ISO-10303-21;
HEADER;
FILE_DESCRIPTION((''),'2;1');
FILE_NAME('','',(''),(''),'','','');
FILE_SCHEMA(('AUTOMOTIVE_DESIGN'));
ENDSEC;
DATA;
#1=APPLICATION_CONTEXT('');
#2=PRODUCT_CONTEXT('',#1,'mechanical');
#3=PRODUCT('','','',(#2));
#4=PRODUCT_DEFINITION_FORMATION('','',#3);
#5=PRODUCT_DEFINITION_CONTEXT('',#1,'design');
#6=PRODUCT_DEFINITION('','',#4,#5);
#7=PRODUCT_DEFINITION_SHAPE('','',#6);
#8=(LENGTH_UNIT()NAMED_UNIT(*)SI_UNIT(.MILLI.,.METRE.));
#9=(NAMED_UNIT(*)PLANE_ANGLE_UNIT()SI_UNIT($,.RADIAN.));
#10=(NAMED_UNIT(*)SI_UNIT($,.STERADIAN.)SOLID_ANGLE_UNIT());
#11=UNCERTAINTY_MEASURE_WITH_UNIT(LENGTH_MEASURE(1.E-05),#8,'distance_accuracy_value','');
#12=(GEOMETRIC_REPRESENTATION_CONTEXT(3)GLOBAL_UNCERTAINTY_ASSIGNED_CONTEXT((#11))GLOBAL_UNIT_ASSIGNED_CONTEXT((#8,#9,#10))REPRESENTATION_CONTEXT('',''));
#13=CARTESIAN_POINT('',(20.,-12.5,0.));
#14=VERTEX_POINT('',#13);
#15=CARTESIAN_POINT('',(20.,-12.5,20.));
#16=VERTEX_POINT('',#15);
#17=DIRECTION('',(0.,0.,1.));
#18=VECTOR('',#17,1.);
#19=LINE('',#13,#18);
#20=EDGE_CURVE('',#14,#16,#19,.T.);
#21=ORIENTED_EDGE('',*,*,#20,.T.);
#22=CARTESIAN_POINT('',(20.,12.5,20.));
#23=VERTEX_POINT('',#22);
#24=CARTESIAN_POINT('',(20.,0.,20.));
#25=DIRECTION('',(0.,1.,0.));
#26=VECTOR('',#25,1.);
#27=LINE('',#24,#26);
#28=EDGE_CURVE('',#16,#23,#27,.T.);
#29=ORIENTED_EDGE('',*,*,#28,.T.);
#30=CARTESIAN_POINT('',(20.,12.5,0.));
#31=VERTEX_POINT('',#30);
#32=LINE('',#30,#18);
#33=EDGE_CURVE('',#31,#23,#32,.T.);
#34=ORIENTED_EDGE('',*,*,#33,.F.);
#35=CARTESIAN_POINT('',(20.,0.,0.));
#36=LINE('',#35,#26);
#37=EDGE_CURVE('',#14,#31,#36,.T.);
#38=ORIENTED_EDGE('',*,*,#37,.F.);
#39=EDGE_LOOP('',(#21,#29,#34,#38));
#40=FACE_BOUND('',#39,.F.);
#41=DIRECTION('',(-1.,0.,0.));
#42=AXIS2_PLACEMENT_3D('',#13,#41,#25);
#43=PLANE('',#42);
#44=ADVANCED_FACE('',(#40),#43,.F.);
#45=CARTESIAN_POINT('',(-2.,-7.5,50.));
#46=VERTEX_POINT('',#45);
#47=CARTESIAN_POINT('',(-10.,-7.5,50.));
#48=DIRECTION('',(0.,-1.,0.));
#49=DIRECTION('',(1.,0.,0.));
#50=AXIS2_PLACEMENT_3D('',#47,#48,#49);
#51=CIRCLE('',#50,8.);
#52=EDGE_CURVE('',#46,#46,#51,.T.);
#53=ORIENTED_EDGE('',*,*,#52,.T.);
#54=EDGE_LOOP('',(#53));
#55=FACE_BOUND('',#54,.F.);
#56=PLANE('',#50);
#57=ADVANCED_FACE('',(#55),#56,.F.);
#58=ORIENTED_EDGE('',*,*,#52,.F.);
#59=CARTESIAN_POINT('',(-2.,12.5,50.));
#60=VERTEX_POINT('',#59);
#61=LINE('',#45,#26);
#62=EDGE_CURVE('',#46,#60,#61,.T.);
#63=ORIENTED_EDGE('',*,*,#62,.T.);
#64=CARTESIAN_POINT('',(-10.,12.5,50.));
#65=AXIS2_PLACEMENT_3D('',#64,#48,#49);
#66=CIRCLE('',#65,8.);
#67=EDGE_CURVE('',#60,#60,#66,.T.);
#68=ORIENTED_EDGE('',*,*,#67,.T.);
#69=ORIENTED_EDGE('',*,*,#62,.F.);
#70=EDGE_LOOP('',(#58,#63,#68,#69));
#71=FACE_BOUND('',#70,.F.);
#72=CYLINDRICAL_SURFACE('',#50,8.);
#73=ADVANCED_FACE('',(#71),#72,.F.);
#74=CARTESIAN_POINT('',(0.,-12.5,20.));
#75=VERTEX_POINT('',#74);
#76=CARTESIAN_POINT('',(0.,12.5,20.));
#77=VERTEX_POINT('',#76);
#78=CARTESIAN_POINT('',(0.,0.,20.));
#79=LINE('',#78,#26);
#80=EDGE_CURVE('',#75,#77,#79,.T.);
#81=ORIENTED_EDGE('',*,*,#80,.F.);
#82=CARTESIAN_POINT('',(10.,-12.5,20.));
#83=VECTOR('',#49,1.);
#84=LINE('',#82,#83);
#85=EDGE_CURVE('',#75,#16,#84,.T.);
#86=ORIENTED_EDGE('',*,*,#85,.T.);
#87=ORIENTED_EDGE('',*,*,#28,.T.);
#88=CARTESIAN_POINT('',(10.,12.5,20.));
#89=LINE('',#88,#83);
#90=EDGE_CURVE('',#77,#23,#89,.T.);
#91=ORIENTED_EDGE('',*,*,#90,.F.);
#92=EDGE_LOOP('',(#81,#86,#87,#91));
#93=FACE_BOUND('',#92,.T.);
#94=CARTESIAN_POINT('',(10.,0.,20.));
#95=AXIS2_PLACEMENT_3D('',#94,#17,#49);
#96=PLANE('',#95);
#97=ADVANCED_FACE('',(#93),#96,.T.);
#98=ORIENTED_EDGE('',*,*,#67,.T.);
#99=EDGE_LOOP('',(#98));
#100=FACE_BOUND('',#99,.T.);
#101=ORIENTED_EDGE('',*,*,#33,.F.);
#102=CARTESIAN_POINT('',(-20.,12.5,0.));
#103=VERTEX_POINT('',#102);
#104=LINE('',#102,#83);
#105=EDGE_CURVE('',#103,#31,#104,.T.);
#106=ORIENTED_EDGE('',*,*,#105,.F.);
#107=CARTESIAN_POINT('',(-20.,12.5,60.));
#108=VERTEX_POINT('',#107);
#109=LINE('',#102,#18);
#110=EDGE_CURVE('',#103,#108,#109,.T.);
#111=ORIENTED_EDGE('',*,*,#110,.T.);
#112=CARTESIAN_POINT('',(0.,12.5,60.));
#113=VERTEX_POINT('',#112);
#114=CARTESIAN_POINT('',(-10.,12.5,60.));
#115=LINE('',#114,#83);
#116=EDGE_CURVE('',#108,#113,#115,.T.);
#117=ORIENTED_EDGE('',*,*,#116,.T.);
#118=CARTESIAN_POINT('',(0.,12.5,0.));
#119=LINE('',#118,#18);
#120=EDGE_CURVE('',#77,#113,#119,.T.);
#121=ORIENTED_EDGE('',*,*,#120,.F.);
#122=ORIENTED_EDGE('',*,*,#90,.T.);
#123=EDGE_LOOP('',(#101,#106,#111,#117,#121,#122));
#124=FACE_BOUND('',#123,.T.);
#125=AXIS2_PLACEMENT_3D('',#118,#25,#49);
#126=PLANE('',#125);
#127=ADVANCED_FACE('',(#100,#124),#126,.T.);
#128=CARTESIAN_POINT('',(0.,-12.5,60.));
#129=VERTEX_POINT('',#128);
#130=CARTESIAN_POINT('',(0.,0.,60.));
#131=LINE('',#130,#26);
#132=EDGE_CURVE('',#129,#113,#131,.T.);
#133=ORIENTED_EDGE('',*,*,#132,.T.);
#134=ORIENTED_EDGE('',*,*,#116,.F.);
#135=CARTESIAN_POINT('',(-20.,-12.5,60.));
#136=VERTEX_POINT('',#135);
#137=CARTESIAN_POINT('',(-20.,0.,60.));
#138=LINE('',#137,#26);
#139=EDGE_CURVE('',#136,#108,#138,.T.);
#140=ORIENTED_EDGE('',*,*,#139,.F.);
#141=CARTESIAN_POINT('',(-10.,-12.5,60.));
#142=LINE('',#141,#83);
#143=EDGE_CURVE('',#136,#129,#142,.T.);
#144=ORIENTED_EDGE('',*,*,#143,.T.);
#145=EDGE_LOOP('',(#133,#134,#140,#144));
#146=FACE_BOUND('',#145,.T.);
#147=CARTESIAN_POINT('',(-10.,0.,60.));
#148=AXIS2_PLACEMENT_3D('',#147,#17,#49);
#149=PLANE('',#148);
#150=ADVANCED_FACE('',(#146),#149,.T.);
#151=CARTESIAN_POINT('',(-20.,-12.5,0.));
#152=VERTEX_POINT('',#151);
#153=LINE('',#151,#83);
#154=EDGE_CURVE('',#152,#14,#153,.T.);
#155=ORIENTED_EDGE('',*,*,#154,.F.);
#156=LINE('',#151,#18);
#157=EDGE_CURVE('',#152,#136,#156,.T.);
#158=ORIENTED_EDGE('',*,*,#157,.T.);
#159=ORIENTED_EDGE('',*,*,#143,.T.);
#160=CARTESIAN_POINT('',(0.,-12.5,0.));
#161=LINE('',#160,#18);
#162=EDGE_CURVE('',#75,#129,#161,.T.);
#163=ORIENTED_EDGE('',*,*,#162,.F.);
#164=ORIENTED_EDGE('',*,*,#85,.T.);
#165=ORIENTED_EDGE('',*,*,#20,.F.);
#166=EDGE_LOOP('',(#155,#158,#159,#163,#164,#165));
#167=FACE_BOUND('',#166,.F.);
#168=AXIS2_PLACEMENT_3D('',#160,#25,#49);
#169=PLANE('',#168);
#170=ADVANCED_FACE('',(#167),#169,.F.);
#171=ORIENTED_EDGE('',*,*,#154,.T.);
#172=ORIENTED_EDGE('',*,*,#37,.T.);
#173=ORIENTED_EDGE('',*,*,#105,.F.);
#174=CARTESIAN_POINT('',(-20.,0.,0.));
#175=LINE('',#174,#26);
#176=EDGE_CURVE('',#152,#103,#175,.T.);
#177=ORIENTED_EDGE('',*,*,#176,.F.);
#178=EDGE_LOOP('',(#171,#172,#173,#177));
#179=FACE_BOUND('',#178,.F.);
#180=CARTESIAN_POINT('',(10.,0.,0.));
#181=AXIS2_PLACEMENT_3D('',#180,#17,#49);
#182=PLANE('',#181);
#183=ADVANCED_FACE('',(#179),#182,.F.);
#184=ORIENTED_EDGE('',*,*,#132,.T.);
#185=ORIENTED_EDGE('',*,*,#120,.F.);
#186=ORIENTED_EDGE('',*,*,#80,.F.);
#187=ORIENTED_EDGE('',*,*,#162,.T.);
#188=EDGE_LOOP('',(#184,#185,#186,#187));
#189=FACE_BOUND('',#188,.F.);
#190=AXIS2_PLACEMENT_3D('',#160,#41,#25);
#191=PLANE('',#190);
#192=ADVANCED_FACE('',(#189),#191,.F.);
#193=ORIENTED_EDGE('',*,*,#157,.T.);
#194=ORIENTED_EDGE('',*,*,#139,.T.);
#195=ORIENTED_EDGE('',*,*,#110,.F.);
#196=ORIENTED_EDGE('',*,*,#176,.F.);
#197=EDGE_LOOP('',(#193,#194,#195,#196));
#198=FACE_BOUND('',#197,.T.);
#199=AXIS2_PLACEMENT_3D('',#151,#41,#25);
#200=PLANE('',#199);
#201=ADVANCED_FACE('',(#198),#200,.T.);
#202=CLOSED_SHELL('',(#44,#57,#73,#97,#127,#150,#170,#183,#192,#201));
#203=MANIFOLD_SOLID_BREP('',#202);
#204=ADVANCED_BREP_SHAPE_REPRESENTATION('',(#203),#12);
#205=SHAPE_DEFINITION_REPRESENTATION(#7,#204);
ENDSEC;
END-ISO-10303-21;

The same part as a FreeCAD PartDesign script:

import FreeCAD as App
import Part
import Sketcher

V = App.Vector
Q = App.Units.Quantity

doc = App.newDocument("Part")
body = doc.addObject("PartDesign::Body", "Body")

# Sketch on XY plane
sketch1 = doc.addObject("Sketcher::SketchObject", "Sketch")
body.addObject(sketch1)
sketch1.AttachmentSupport = (doc.XY_Plane, [""])
sketch1.MapMode = "FlatFace"
sketch1.addGeometry(Part.LineSegment(V(-20, 12, 0), V(-20, -12, 0)), False)
sketch1.addGeometry(Part.LineSegment(V(-20, -12, 0), V(0, -12, 0)), False)
sketch1.addGeometry(Part.LineSegment(V(0, -12, 0), V(0, 12, 0)), False)
sketch1.addGeometry(Part.LineSegment(V(0, 12, 0), V(-20, 12, 0)), False)
sketch1.addConstraint(Sketcher.Constraint("Coincident", 0, 2, 1, 1))
sketch1.addConstraint(Sketcher.Constraint("Coincident", 1, 2, 2, 1))
sketch1.addConstraint(Sketcher.Constraint("Coincident", 2, 2, 3, 1))
sketch1.addConstraint(Sketcher.Constraint("Coincident", 3, 2, 0, 1))
sketch1.addConstraint(Sketcher.Constraint("Vertical", 0))
sketch1.addConstraint(Sketcher.Constraint("Horizontal", 1))
sketch1.addConstraint(Sketcher.Constraint("Vertical", 2))
sketch1.addConstraint(Sketcher.Constraint("Horizontal", 3))
sketch1.addConstraint(Sketcher.Constraint("Symmetric", 1, 2, 2, 2, -1, 1))
sketch1.addConstraint(Sketcher.Constraint("DistanceX", 1, 1, 1, 2, Q("20 mm")))
sketch1.addConstraint(Sketcher.Constraint("DistanceY", 0, 2, 0, 1, Q("25 mm")))
pad1 = doc.addObject("PartDesign::Pad", "Pad")
body.addObject(pad1)
pad1.Profile = sketch1
pad1.Length = 60

# Sketch on XY plane
sketch2 = doc.addObject("Sketcher::SketchObject", "Sketch001")
body.addObject(sketch2)
sketch2.AttachmentSupport = (doc.XY_Plane, [""])
sketch2.MapMode = "FlatFace"
sketch2.addGeometry(Part.LineSegment(V(0, 12, 0), V(0, -12, 0)), False)
sketch2.addGeometry(Part.LineSegment(V(0, -12, 0), V(20, -12, 0)), False)
sketch2.addGeometry(Part.LineSegment(V(20, -12, 0), V(20, 12, 0)), False)
sketch2.addGeometry(Part.LineSegment(V(20, 12, 0), V(0, 12, 0)), False)
sketch2.addConstraint(Sketcher.Constraint("Coincident", 0, 2, 1, 1))
sketch2.addConstraint(Sketcher.Constraint("Coincident", 1, 2, 2, 1))
sketch2.addConstraint(Sketcher.Constraint("Coincident", 2, 2, 3, 1))
sketch2.addConstraint(Sketcher.Constraint("Coincident", 3, 2, 0, 1))
sketch2.addConstraint(Sketcher.Constraint("Vertical", 0))
sketch2.addConstraint(Sketcher.Constraint("Horizontal", 1))
sketch2.addConstraint(Sketcher.Constraint("Vertical", 2))
sketch2.addConstraint(Sketcher.Constraint("Horizontal", 3))
sketch2.addConstraint(Sketcher.Constraint("Symmetric", 0, 2, 3, 2, -1, 1))
sketch2.addConstraint(Sketcher.Constraint("DistanceX", 1, 1, 1, 2, Q("20 mm")))
sketch2.addConstraint(Sketcher.Constraint("DistanceY", 0, 2, 0, 1, Q("25 mm")))
pad2 = doc.addObject("PartDesign::Pad", "Pad001")
body.addObject(pad2)
pad2.Profile = sketch2
pad2.Length = 20

# Sketch on XZ plane
sketch3 = doc.addObject("Sketcher::SketchObject", "Sketch002")
body.addObject(sketch3)
sketch3.AttachmentSupport = (doc.XZ_Plane, [""])
sketch3.MapMode = "FlatFace"
sketch3.AttachmentOffset = App.Placement(V(0, 0, 7.5), App.Rotation())
sketch3.addGeometry(Part.Circle(V(-10, 50, 0), V(0, 0, 1), 8), False)
sketch3.addConstraint(Sketcher.Constraint("Diameter", 0, Q("16 mm")))
sketch3.addConstraint(Sketcher.Constraint("DistanceX", 0, 3, -1, 1, Q("10 mm")))
sketch3.addConstraint(Sketcher.Constraint("DistanceY", -1, 1, 0, 3, Q("50 mm")))
pocket1 = doc.addObject("PartDesign::Pocket", "Pocket")
body.addObject(pocket1)
pocket1.Profile = sketch3
pocket1.Length = 20

doc.recompute()
